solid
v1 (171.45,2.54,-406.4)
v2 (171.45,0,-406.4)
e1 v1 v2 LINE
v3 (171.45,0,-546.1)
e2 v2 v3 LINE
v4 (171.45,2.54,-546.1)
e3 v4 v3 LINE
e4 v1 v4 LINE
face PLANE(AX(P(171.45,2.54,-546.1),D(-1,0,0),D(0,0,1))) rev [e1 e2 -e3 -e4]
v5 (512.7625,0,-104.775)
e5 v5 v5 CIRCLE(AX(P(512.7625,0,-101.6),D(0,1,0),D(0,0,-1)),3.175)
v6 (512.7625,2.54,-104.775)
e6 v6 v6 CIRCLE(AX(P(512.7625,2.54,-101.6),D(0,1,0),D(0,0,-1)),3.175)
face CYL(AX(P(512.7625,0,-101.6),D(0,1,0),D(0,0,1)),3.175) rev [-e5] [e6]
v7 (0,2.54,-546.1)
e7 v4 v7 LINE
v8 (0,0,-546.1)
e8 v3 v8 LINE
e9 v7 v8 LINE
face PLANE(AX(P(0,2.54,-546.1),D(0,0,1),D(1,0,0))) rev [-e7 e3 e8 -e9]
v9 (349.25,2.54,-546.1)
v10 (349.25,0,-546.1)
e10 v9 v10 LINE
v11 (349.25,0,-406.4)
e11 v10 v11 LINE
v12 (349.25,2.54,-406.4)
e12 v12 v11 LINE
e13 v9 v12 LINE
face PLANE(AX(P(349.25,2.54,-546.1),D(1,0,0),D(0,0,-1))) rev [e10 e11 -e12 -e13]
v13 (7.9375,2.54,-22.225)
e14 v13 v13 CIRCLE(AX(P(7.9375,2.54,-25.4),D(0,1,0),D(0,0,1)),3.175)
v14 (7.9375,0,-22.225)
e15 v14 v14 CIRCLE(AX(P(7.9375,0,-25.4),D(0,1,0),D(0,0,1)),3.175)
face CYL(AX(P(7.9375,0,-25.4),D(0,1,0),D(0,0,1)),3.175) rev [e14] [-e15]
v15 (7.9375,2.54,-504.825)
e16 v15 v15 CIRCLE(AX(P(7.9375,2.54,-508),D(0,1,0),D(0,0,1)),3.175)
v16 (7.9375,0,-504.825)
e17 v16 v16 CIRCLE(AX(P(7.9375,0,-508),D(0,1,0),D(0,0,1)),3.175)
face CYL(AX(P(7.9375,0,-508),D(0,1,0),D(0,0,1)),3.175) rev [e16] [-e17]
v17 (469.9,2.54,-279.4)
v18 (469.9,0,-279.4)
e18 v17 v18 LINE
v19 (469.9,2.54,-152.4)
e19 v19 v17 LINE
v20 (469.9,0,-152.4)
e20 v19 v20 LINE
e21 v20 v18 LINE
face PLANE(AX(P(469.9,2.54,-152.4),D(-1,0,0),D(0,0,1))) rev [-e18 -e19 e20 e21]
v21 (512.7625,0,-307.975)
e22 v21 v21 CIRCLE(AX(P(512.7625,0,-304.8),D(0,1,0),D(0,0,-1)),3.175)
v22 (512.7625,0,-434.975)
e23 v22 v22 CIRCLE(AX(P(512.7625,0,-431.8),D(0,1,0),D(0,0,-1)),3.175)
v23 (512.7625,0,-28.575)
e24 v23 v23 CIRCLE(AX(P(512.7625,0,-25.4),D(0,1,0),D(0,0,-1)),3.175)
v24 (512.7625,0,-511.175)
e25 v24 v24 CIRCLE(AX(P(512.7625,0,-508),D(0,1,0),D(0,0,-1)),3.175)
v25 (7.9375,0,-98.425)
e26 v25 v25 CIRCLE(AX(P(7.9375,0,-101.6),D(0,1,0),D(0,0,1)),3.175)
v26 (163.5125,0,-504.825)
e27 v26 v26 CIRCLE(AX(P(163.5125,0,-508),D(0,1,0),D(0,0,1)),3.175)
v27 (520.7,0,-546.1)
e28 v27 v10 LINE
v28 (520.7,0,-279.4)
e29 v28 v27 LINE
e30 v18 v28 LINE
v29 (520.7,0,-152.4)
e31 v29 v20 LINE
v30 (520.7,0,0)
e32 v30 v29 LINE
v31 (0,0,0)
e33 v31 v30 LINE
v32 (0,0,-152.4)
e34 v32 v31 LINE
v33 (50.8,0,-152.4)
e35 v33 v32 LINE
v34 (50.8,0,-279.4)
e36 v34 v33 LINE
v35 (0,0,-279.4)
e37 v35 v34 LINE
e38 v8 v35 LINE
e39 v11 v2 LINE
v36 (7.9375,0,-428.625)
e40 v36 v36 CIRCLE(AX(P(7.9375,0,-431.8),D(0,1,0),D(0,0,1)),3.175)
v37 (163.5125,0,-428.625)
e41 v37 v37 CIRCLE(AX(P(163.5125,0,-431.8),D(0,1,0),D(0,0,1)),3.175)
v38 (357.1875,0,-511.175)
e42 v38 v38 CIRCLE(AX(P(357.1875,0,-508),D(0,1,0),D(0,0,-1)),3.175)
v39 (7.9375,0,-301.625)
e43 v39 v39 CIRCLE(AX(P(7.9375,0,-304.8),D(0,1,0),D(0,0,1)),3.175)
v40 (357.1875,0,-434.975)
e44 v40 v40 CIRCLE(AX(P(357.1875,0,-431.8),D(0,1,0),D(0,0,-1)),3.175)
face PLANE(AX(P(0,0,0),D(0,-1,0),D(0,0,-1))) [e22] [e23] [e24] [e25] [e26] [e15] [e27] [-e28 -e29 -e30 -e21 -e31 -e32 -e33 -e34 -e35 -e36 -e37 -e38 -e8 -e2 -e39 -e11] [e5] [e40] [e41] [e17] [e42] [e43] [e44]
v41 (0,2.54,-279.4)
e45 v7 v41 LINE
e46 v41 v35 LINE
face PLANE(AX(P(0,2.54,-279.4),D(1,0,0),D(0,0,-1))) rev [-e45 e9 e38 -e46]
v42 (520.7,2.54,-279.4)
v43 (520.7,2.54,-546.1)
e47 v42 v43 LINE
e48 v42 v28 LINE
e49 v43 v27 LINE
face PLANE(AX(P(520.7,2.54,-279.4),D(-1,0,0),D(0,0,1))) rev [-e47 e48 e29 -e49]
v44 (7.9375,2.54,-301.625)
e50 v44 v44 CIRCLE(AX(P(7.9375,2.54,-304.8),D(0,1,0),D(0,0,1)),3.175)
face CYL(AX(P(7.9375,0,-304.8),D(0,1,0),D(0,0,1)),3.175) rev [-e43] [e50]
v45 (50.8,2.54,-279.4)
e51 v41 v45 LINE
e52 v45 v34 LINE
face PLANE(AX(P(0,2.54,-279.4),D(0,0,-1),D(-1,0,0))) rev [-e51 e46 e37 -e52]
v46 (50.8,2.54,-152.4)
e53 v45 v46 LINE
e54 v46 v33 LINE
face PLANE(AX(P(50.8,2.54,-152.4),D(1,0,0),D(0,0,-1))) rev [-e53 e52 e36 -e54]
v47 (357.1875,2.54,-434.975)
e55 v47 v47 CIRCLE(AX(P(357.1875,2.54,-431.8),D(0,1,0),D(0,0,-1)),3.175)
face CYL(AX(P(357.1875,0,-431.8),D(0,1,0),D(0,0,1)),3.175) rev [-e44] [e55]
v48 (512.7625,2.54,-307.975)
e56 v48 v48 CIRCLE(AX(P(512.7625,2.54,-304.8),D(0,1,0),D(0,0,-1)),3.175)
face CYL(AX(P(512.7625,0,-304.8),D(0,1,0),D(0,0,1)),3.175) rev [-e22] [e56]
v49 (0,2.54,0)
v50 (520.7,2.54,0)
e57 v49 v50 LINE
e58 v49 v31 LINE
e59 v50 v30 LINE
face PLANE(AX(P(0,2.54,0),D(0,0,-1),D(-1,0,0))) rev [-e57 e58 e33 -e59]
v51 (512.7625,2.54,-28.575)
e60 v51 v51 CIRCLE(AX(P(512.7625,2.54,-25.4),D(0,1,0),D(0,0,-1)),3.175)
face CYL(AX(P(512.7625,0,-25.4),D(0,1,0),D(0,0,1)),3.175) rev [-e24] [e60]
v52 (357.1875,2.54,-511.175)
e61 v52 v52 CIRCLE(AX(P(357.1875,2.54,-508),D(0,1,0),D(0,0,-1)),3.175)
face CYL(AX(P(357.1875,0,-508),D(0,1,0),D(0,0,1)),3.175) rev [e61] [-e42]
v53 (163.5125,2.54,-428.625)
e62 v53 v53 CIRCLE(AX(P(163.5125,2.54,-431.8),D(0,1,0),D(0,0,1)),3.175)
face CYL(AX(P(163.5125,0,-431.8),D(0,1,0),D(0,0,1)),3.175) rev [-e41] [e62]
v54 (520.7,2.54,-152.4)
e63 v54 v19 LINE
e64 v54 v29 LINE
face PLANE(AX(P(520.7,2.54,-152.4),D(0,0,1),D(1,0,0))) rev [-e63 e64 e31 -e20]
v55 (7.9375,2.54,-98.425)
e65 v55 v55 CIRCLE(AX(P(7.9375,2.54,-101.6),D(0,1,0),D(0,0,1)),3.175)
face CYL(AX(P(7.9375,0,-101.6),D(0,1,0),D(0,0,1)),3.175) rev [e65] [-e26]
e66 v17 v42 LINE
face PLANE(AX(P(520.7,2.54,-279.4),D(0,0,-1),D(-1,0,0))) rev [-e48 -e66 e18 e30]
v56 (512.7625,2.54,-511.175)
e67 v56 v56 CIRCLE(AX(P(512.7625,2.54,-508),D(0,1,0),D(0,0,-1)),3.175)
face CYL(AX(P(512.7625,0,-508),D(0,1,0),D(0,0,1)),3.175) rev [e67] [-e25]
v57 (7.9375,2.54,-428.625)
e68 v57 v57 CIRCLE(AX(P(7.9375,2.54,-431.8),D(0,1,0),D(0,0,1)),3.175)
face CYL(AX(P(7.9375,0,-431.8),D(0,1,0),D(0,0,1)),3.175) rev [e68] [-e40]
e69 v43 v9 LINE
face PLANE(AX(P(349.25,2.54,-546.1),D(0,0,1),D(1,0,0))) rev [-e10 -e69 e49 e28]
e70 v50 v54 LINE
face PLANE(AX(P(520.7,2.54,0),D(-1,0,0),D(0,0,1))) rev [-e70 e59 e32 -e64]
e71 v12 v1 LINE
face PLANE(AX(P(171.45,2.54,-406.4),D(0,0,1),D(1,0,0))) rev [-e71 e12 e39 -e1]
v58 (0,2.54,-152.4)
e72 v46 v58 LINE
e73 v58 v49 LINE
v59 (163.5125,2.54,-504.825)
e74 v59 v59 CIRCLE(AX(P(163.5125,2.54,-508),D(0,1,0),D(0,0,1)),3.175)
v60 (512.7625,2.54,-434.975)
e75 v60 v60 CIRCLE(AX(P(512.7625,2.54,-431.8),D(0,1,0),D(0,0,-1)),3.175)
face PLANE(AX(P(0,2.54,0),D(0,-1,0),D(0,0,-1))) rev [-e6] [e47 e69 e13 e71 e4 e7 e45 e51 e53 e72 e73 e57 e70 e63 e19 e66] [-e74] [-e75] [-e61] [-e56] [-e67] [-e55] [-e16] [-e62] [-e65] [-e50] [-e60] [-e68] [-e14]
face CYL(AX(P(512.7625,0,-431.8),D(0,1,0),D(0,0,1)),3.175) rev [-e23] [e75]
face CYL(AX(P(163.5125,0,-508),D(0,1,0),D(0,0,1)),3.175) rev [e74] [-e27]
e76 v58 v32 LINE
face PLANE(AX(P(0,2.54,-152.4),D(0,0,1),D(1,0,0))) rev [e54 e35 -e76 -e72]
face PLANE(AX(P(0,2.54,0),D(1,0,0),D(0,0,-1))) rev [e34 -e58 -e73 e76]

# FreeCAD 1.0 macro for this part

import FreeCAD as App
import Part
import Sketcher
from FreeCAD import Vector
Q = App.Units.Quantity


def add_polygon(sketch, points):
    """Adds a closed chain of lines whose ends are joined by coincident constraints."""
    first, n = sketch.GeometryCount, len(points)
    for a, b in zip(points, points[1:] + points[:1]):
        sketch.addGeometry(Part.LineSegment(App.Vector(*a, 0), App.Vector(*b, 0)), False)
    for i in range(n):
        sketch.addConstraint(Sketcher.Constraint("Coincident", first + i, 2, first + (i + 1) % n, 1))

doc = App.newDocument("Part")
body = doc.addObject("PartDesign::Body", "Body")

# Sketch on XZ plane
sketch1 = body.newObject("Sketcher::SketchObject", "Sketch")
sketch1.AttachmentSupport = (doc.getObject("XZ_Plane"), [""])
sketch1.MapMode = "FlatFace"
add_polygon(sketch1, [(0, -546), (0, -279), (51, -279), (51, -152), (0, -152), (0, 0), (521, 0), (521, -152), (470, -152), (470, -279), (521, -279), (521, -546), (349, -546), (349, -406), (171, -406), (171, -546)])  # lines 0-15
sketch1.addConstraint(Sketcher.Constraint("Vertical", 0))
sketch1.addConstraint(Sketcher.Constraint("Horizontal", 1))
sketch1.addConstraint(Sketcher.Constraint("Vertical", 2))
sketch1.addConstraint(Sketcher.Constraint("Horizontal", 3))
sketch1.addConstraint(Sketcher.Constraint("Vertical", 4))
sketch1.addConstraint(Sketcher.Constraint("Horizontal", 5))
sketch1.addConstraint(Sketcher.Constraint("Vertical", 6))
sketch1.addConstraint(Sketcher.Constraint("Horizontal", 7))
sketch1.addConstraint(Sketcher.Constraint("Vertical", 8))
sketch1.addConstraint(Sketcher.Constraint("Horizontal", 9))
sketch1.addConstraint(Sketcher.Constraint("Vertical", 10))
sketch1.addConstraint(Sketcher.Constraint("Horizontal", 11))
sketch1.addConstraint(Sketcher.Constraint("Vertical", 12))
sketch1.addConstraint(Sketcher.Constraint("Horizontal", 13))
sketch1.addConstraint(Sketcher.Constraint("Vertical", 14))
sketch1.addConstraint(Sketcher.Constraint("Horizontal", 15))
sketch1.addConstraint(Sketcher.Constraint("Coincident", 4, 2, -1, 1))
sketch1.addConstraint(Sketcher.Constraint("PointOnObject", 0, 2, -2))
sketch1.addConstraint(Sketcher.Constraint("Horizontal", 3, 2, 6, 2))
sketch1.addConstraint(Sketcher.Constraint("Horizontal", 1, 2, 8, 2))
sketch1.addConstraint(Sketcher.Constraint("Horizontal", 11, 2, 14, 2))
sketch1.addConstraint(Sketcher.Constraint("Vertical", 6, 2, 9, 2))
sketch1.addConstraint(Sketcher.Constraint("Equal", 3, 7))
sketch1.addConstraint(Sketcher.Constraint("Equal", 11, 15))
sketch1.addConstraint(Sketcher.Constraint("DistanceX", 1, 1, 1, 2, Q("2 in")))
sketch1.addConstraint(Sketcher.Constraint("DistanceX", 13, 2, 13, 1, Q("7 in")))
sketch1.addConstraint(Sketcher.Constraint("DistanceY", 2, 1, 2, 2, Q("5 in")))
sketch1.addConstraint(Sketcher.Constraint("DistanceY", 4, 1, 4, 2, Q("6 in")))
sketch1.addConstraint(Sketcher.Constraint("DistanceX", 5, 1, 5, 2, Q("20.5 in")))
sketch1.addConstraint(Sketcher.Constraint("DistanceY", 0, 1, 0, 2, Q("10.5 in")))
sketch1.addConstraint(Sketcher.Constraint("DistanceY", 12, 1, 12, 2, Q("5.5 in")))
pad1 = body.newObject("PartDesign::Pad", "Pad")
pad1.Profile = sketch1
pad1.Length = Q("0.1 in")
pad1.Reversed = True

# Sketch on XZ plane
sketch2 = body.newObject("Sketcher::SketchObject", "Sketch001")
sketch2.AttachmentSupport = (doc.getObject("XZ_Plane"), [""])
sketch2.MapMode = "FlatFace"
sketch2.AttachmentOffset = App.Placement(Vector(0, 0, -0.1 * 25.4), App.Rotation())
sketch2.addGeometry(Part.Circle(Vector(7.9, -508, 0), Vector(0, 0, 1), 3.2), False)
sketch2.addGeometry(Part.Circle(Vector(163.5, -508, 0), Vector(0, 0, 1), 3.2), False)
sketch2.addGeometry(Part.Circle(Vector(7.9, -431.8, 0), Vector(0, 0, 1), 3.2), False)
sketch2.addGeometry(Part.Circle(Vector(163.5, -431.8, 0), Vector(0, 0, 1), 3.2), False)
sketch2.addGeometry(Part.Circle(Vector(7.9, -304.8, 0), Vector(0, 0, 1), 3.2), False)
sketch2.addGeometry(Part.Circle(Vector(7.9, -101.6, 0), Vector(0, 0, 1), 3.2), False)
sketch2.addGeometry(Part.Circle(Vector(7.9, -25.4, 0), Vector(0, 0, 1), 3.2), False)
sketch2.addGeometry(Part.Circle(Vector(512.8, -25.4, 0), Vector(0, 0, 1), 3.2), False)
sketch2.addGeometry(Part.Circle(Vector(512.8, -101.6, 0), Vector(0, 0, 1), 3.2), False)
sketch2.addGeometry(Part.Circle(Vector(512.8, -304.8, 0), Vector(0, 0, 1), 3.2), False)
sketch2.addGeometry(Part.Circle(Vector(357.2, -431.8, 0), Vector(0, 0, 1), 3.2), False)
sketch2.addGeometry(Part.Circle(Vector(512.8, -431.8, 0), Vector(0, 0, 1), 3.2), False)
sketch2.addGeometry(Part.Circle(Vector(357.2, -508, 0), Vector(0, 0, 1), 3.2), False)
sketch2.addGeometry(Part.Circle(Vector(512.8, -508, 0), Vector(0, 0, 1), 3.2), False)
sketch2.addConstraint(Sketcher.Constraint("Equal", 0, 1))
sketch2.addConstraint(Sketcher.Constraint("Equal", 1, 2))
sketch2.addConstraint(Sketcher.Constraint("Equal", 2, 3))
sketch2.addConstraint(Sketcher.Constraint("Equal", 3, 4))
sketch2.addConstraint(Sketcher.Constraint("Equal", 4, 5))
sketch2.addConstraint(Sketcher.Constraint("Equal", 5, 6))
sketch2.addConstraint(Sketcher.Constraint("Equal", 6, 7))
sketch2.addConstraint(Sketcher.Constraint("Equal", 7, 8))
sketch2.addConstraint(Sketcher.Constraint("Equal", 8, 9))
sketch2.addConstraint(Sketcher.Constraint("Equal", 9, 10))
sketch2.addConstraint(Sketcher.Constraint("Equal", 10, 11))
sketch2.addConstraint(Sketcher.Constraint("Equal", 11, 12))
sketch2.addConstraint(Sketcher.Constraint("Equal", 12, 13))
sketch2.addConstraint(Sketcher.Constraint("Horizontal", 0, 3, 1, 3))
sketch2.addConstraint(Sketcher.Constraint("Horizontal", 2, 3, 3, 3))
sketch2.addConstraint(Sketcher.Constraint("Horizontal", 6, 3, 7, 3))
sketch2.addConstraint(Sketcher.Constraint("Horizontal", 5, 3, 8, 3))
sketch2.addConstraint(Sketcher.Constraint("Horizontal", 4, 3, 9, 3))
sketch2.addConstraint(Sketcher.Constraint("Horizontal", 3, 3, 10, 3))
sketch2.addConstraint(Sketcher.Constraint("Horizontal", 10, 3, 11, 3))
sketch2.addConstraint(Sketcher.Constraint("Horizontal", 1, 3, 12, 3))
sketch2.addConstraint(Sketcher.Constraint("Horizontal", 12, 3, 13, 3))
sketch2.addConstraint(Sketcher.Constraint("Vertical", 0, 3, 2, 3))
sketch2.addConstraint(Sketcher.Constraint("Vertical", 1, 3, 3, 3))
sketch2.addConstraint(Sketcher.Constraint("Vertical", 2, 3, 4, 3))
sketch2.addConstraint(Sketcher.Constraint("Vertical", 4, 3, 5, 3))
sketch2.addConstraint(Sketcher.Constraint("Vertical", 5, 3, 6, 3))
sketch2.addConstraint(Sketcher.Constraint("Vertical", 7, 3, 8, 3))
sketch2.addConstraint(Sketcher.Constraint("Vertical", 8, 3, 9, 3))
sketch2.addConstraint(Sketcher.Constraint("Vertical", 9, 3, 11, 3))
sketch2.addConstraint(Sketcher.Constraint("Vertical", 10, 3, 12, 3))
sketch2.addConstraint(Sketcher.Constraint("Vertical", 11, 3, 13, 3))
sketch2.addConstraint(Sketcher.Constraint("Diameter", 0, Q("0.25 in")))
sketch2.addConstraint(Sketcher.Constraint("DistanceY", 0, 3, -1, 1, Q("20 in")))
sketch2.addConstraint(Sketcher.Constraint("DistanceY", 2, 3, -1, 1, Q("17 in")))
sketch2.addConstraint(Sketcher.Constraint("DistanceY", 4, 3, -1, 1, Q("12 in")))
sketch2.addConstraint(Sketcher.Constraint("DistanceY", 5, 3, -1, 1, Q("4 in")))
sketch2.addConstraint(Sketcher.Constraint("DistanceY", 6, 3, -1, 1, Q("1 in")))
sketch2.addConstraint(Sketcher.Constraint("DistanceX", 3, 3, 7, 3, Q("13.75 in")))
sketch2.addConstraint(Sketcher.Constraint("DistanceX", 2, 3, 10, 3, Q("13.75 in")))
sketch2.addConstraint(Sketcher.Constraint("DistanceX", -1, 1, 0, 3, Q("0.3125 in")))
sketch2.addConstraint(Sketcher.Constraint("DistanceX", -1, 1, 1, 3, Q("6.4375 in")))
pocket1 = body.newObject("PartDesign::Pocket", "Pocket")
pocket1.Profile = sketch2
pocket1.Type = "ThroughAll"
pocket1.Reversed = True

doc.recompute()
